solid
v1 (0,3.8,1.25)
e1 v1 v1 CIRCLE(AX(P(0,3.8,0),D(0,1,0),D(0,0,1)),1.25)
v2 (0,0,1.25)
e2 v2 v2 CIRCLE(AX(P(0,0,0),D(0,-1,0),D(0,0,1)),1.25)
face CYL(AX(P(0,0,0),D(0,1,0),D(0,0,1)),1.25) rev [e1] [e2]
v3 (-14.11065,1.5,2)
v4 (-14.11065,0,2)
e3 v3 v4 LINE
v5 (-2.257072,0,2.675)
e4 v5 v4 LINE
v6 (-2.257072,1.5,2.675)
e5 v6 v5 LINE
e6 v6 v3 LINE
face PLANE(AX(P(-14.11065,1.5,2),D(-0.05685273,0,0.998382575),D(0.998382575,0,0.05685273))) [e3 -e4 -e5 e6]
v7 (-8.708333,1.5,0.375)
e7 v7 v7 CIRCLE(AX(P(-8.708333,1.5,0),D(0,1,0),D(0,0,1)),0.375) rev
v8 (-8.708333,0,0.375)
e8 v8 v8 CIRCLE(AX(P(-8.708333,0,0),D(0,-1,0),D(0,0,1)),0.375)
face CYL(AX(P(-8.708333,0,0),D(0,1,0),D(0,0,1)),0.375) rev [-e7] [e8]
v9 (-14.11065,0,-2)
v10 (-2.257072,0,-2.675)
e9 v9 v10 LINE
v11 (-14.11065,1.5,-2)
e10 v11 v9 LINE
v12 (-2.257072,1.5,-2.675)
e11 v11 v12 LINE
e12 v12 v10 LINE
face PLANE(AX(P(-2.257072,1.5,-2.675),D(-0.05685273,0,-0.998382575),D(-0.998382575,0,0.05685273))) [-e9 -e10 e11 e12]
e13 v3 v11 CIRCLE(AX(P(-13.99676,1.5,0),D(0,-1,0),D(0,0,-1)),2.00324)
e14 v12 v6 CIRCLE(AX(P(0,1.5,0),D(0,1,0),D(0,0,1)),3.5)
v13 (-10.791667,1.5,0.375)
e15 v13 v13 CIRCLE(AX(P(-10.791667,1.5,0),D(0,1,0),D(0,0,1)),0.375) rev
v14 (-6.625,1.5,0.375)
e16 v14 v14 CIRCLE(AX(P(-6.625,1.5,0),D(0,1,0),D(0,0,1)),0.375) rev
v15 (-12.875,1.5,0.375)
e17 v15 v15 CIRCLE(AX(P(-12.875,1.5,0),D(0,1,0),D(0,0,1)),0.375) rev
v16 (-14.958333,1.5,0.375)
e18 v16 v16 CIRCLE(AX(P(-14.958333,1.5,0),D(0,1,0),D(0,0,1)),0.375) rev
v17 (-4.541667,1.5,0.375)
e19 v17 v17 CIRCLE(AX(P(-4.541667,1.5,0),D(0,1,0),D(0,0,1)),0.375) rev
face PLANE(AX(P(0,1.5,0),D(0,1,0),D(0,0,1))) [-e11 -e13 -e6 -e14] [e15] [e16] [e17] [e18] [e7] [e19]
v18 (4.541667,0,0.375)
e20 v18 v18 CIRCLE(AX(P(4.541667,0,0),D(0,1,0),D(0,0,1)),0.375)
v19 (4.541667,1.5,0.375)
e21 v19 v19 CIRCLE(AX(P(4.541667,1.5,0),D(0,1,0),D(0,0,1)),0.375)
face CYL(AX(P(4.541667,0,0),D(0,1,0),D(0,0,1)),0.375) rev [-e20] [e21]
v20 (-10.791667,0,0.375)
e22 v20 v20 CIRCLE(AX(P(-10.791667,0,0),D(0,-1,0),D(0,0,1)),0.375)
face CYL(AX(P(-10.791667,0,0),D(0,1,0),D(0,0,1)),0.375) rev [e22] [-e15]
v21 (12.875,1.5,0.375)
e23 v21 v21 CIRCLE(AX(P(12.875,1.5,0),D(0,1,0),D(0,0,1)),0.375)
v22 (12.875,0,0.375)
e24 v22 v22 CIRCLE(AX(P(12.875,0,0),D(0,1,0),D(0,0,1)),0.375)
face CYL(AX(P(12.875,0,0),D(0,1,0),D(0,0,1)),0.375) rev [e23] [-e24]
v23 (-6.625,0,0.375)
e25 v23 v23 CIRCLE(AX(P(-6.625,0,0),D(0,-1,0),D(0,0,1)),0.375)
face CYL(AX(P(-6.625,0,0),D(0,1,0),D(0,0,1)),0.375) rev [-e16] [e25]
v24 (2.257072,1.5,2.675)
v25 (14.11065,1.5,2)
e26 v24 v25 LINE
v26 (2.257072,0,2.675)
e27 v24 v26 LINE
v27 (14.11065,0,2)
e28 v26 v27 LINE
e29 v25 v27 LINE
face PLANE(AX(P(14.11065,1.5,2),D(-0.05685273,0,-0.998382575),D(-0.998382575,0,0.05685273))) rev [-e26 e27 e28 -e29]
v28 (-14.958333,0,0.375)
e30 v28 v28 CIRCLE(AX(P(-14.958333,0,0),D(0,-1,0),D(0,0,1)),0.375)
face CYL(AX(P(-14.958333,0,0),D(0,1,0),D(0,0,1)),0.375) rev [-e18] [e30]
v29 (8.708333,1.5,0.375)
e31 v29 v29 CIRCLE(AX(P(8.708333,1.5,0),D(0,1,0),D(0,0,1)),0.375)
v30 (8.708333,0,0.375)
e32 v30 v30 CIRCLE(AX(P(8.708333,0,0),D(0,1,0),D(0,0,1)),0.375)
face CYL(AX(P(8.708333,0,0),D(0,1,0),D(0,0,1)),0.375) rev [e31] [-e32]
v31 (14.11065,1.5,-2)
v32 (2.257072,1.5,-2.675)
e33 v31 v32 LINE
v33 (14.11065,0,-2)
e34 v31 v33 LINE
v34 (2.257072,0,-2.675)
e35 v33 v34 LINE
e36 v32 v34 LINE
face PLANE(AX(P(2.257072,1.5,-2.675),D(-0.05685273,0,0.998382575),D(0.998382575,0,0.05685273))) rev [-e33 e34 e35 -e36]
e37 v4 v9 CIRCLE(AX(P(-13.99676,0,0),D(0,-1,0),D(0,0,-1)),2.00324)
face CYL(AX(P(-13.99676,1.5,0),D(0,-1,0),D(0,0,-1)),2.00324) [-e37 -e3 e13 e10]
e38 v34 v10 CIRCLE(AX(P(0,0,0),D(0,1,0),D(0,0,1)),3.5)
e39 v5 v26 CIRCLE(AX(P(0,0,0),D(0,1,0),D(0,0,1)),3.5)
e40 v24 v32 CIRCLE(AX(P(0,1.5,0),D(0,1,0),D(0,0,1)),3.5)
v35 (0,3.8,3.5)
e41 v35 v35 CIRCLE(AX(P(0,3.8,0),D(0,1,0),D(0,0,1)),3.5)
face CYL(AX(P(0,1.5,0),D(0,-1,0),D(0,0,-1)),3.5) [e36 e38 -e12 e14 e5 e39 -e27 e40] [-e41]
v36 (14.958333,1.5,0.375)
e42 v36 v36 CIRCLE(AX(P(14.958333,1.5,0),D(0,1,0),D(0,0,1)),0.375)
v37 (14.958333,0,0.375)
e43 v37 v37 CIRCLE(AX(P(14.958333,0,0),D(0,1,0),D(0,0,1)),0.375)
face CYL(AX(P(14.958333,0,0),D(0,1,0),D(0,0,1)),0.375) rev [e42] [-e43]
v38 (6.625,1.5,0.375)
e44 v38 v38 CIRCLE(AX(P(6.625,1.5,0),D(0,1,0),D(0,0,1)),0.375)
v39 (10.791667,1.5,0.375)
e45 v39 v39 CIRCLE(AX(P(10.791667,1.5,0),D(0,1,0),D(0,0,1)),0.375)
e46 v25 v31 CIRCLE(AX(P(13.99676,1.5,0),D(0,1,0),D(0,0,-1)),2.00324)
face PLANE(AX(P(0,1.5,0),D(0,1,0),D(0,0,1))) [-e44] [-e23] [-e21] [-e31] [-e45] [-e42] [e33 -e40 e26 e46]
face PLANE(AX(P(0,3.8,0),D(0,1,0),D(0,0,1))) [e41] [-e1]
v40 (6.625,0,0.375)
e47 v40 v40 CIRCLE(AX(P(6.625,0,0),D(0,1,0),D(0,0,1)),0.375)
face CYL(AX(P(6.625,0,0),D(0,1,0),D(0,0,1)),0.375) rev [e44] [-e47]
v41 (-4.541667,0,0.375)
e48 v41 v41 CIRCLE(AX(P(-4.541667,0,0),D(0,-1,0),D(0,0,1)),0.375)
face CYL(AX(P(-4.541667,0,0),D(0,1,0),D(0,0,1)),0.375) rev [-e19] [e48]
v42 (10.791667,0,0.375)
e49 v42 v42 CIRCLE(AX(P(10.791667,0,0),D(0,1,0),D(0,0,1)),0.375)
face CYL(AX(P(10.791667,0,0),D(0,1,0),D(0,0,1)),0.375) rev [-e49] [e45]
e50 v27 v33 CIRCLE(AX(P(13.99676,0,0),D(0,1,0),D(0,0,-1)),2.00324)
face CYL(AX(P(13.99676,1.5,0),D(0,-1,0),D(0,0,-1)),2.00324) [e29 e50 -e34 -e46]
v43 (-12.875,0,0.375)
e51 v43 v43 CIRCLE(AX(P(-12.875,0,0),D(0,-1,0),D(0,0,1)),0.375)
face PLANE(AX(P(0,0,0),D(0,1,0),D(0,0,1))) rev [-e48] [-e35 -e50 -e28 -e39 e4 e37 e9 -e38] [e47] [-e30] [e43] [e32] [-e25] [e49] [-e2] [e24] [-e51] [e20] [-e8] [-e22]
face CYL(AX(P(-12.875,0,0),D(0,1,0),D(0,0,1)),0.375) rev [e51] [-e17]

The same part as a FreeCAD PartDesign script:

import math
import FreeCAD as App
import Part
import Sketcher

V = App.Vector

doc = App.newDocument("Part")
body = doc.addObject("PartDesign::Body", "Body")

# Sketch on XZ plane
sketch1 = doc.addObject("Sketcher::SketchObject", "Sketch")
body.addObject(sketch1)
sketch1.AttachmentSupport = (doc.XZ_Plane, [""])
sketch1.MapMode = "FlatFace"
sketch1.addGeometry([
    Part.LineSegment(V(14.11065, -2, 0), V(2.257072, -2.675, 0)),
    Part.ArcOfCircle(Part.Circle(V(0, 0, 0), V(0, 0, 1), 3.5), math.radians(49.843488), math.radians(310.156512)),
    Part.LineSegment(V(2.257072, 2.675, 0), V(14.11065, 2, 0)),
    Part.ArcOfCircle(Part.Circle(V(13.99676, 0, 0), V(0, 0, 1), 2.00324), math.radians(-86.740821), math.radians(86.740821)),
], False)
sketch1.addConstraint([
    Sketcher.Constraint("Coincident", 0, 2, 1, 2),
    Sketcher.Constraint("Coincident", 1, 1, 2, 1),
    Sketcher.Constraint("Coincident", 2, 2, 3, 2),
    Sketcher.Constraint("Coincident", 3, 1, 0, 1),
    Sketcher.Constraint("Coincident", 1, 3, -1, 1),
    Sketcher.Constraint("PointOnObject", 3, 3, -1),
    Sketcher.Constraint("Radius", 1, 3.5),
    Sketcher.Constraint("DistanceY", -1, 1, 2, 2, 2.0),
    Sketcher.Constraint("DistanceY", 3, 1, -1, 1, 2.0),
    Sketcher.Constraint("Radius", 3, 2.00324),
    Sketcher.Constraint("DistanceY", 0, 2, 1, 1, 5.35),
    Sketcher.Constraint("DistanceY", 0, 2, -1, 1, 2.675),
    Sketcher.Constraint("Distance", 0, 11.872781),
])
pad1 = doc.addObject("PartDesign::Pad", "Pad")
body.addObject(pad1)
pad1.Profile = sketch1
pad1.Length = 1.5
pad1.Reversed = True

# Sketch on XZ plane
sketch2 = doc.addObject("Sketcher::SketchObject", "Sketch001")
body.addObject(sketch2)
sketch2.AttachmentSupport = (doc.XZ_Plane, [""])
sketch2.MapMode = "FlatFace"
sketch2.AttachmentOffset = App.Placement(V(0, 0, -1.5), App.Rotation())
sketch2.addGeometry(Part.Circle(V(0, 0, 0), V(0, 0, 1), 3.5), False)
sketch2.addConstraint([
    Sketcher.Constraint("Coincident", 0, 3, -1, 1),
    Sketcher.Constraint("Diameter", 0, 7.0),
])
pad2 = doc.addObject("PartDesign::Pad", "Pad001")
body.addObject(pad2)
pad2.Profile = sketch2
pad2.Length = 2.3
pad2.Reversed = True

# Sketch on XZ plane
sketch3 = doc.addObject("Sketcher::SketchObject", "Sketch002")
body.addObject(sketch3)
sketch3.AttachmentSupport = (doc.XZ_Plane, [""])
sketch3.MapMode = "FlatFace"
sketch3.AttachmentOffset = App.Placement(V(0, 0, -1.5), App.Rotation())
sketch3.addGeometry([
    Part.Circle(V(14.958333, 0, 0), V(0, 0, 1), 0.375),  # 0
    Part.Circle(V(12.875, 0, 0), V(0, 0, 1), 0.375),  # 1
    Part.Circle(V(10.791667, 0, 0), V(0, 0, 1), 0.375),  # 2
    Part.Circle(V(8.708333, 0, 0), V(0, 0, 1), 0.375),  # 3
    Part.Circle(V(6.625, 0, 0), V(0, 0, 1), 0.375),  # 4
    Part.Circle(V(4.541667, 0, 0), V(0, 0, 1), 0.375),  # 5
    Part.Circle(V(0, 0, 0), V(0, 0, 1), 1.25),  # 6
], False)
sketch3.addConstraint([
    Sketcher.Constraint("Coincident", 6, 3, -1, 1),
    Sketcher.Constraint("Equal", 0, 1),
    Sketcher.Constraint("Equal", 1, 2),
    Sketcher.Constraint("Equal", 2, 3),
    Sketcher.Constraint("Equal", 3, 4),
    Sketcher.Constraint("Equal", 4, 5),
    Sketcher.Constraint("PointOnObject", 0, 3, -1),
    Sketcher.Constraint("PointOnObject", 1, 3, -1),
    Sketcher.Constraint("PointOnObject", 2, 3, -1),
    Sketcher.Constraint("PointOnObject", 3, 3, -1),
    Sketcher.Constraint("PointOnObject", 4, 3, -1),
    Sketcher.Constraint("PointOnObject", 5, 3, -1),
    Sketcher.Constraint("Diameter", 6, 2.5),
    Sketcher.Constraint("Diameter", 0, 0.75),
    Sketcher.Constraint("DistanceX", 3, 3, 0, 3, 6.25),
    Sketcher.Constraint("DistanceX", 4, 3, 1, 3, 6.25),
    Sketcher.Constraint("DistanceX", 5, 3, 2, 3, 6.25),
    Sketcher.Constraint("DistanceX", -1, 1, 1, 3, 12.875),
    Sketcher.Constraint("DistanceX", -1, 1, 0, 3, 14.958333),
    Sketcher.Constraint("DistanceX", -1, 1, 2, 3, 10.791667),
])
pocket1 = doc.addObject("PartDesign::Pocket", "Pocket")
body.addObject(pocket1)
pocket1.Profile = sketch3
pocket1.Length = 35.078089
pocket1.Midplane = True
doc.recompute()

mirrored = doc.addObject("PartDesign::Mirrored", "Mirrored")
body.addObject(mirrored)
mirrored.Originals = [pad1, pocket1]
mirrored.MirrorPlane = (doc.YZ_Plane, [""])
body.Tip = mirrored

doc.recompute()
